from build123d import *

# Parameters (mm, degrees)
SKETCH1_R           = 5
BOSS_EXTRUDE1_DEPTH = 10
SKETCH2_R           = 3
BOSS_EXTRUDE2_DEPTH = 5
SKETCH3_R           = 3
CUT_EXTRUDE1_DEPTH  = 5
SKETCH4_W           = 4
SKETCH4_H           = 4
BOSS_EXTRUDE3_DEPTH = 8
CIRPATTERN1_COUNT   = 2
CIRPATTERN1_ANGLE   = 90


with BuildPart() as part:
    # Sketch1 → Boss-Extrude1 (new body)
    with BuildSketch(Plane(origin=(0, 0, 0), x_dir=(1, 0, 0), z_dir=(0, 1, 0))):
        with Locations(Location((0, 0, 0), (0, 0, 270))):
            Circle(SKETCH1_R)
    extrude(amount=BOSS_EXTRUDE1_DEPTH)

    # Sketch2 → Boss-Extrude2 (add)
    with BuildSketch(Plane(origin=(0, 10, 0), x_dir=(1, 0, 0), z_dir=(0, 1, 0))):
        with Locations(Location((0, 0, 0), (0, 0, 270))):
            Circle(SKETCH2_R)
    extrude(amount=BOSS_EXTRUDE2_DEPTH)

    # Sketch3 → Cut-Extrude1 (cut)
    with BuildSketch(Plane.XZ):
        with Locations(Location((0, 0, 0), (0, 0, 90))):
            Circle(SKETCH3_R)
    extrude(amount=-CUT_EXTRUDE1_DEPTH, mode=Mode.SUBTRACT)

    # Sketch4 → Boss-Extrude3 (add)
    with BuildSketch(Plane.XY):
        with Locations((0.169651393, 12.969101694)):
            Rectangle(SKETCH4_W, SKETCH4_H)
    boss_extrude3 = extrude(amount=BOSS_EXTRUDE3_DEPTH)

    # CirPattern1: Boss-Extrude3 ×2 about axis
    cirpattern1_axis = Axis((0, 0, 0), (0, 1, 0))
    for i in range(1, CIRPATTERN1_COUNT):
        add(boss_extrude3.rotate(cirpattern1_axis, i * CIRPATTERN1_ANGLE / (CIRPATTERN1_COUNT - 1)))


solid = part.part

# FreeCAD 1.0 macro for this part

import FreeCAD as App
import Part
import Sketcher
from FreeCAD import Vector

doc = App.newDocument("Part")
body = doc.addObject("PartDesign::Body", "Body")

# Sketch on XZ plane
sketch1 = body.newObject("Sketcher::SketchObject", "Sketch")
sketch1.AttachmentSupport = (doc.getObject("XZ_Plane"), [""])
sketch1.MapMode = "FlatFace"
sketch1.addGeometry(Part.Circle(Vector(0, 0, 0), Vector(0, 0, 1), 5), False)
sketch1.addConstraint(Sketcher.Constraint("Coincident", 0, 3, -1, 1))
sketch1.addConstraint(Sketcher.Constraint("Diameter", 0, 10.0))
pad1 = body.newObject("PartDesign::Pad", "Pad")
pad1.Profile = sketch1
pad1.Length = 10
pad1.Reversed = True

# Sketch on XZ plane
sketch2 = body.newObject("Sketcher::SketchObject", "Sketch001")
sketch2.AttachmentSupport = (doc.getObject("XZ_Plane"), [""])
sketch2.MapMode = "FlatFace"
sketch2.AttachmentOffset = App.Placement(Vector(0, 0, -10), App.Rotation())
sketch2.addGeometry(Part.Circle(Vector(0, 0, 0), Vector(0, 0, 1), 3), False)
sketch2.addConstraint(Sketcher.Constraint("Coincident", 0, 3, -1, 1))
sketch2.addConstraint(Sketcher.Constraint("Diameter", 0, 6.0))
pad2 = body.newObject("PartDesign::Pad", "Pad001")
pad2.Profile = sketch2
pad2.Length = 5
pad2.Reversed = True

# Sketch on XZ plane
sketch3 = body.newObject("Sketcher::SketchObject", "Sketch002")
sketch3.AttachmentSupport = (doc.getObject("XZ_Plane"), [""])
sketch3.MapMode = "FlatFace"
sketch3.addGeometry(Part.Circle(Vector(0, 0, 0), Vector(0, 0, 1), 3), False)
sketch3.addConstraint(Sketcher.Constraint("Coincident", 0, 3, -1, 1))
sketch3.addConstraint(Sketcher.Constraint("Diameter", 0, 6.0))
pocket1 = body.newObject("PartDesign::Pocket", "Pocket")
pocket1.Profile = sketch3
pocket1.Length = 5

# Sketch on XY plane
sketch4 = body.newObject("Sketcher::SketchObject", "Sketch003")
sketch4.AttachmentSupport = (doc.getObject("XY_Plane"), [""])
sketch4.MapMode = "FlatFace"
sketch4.addGeometry(Part.LineSegment(Vector(-1.8, 15, 0), Vector(-1.8, 11, 0)), False)
sketch4.addGeometry(Part.LineSegment(Vector(-1.8, 11, 0), Vector(2.2, 11, 0)), False)
sketch4.addGeometry(Part.LineSegment(Vector(2.2, 11, 0), Vector(2.2, 15, 0)), False)
sketch4.addGeometry(Part.LineSegment(Vector(2.2, 15, 0), Vector(-1.8, 15, 0)), False)
sketch4.addConstraint(Sketcher.Constraint("Coincident", 0, 2, 1, 1))
sketch4.addConstraint(Sketcher.Constraint("Coincident", 1, 2, 2, 1))
sketch4.addConstraint(Sketcher.Constraint("Coincident", 2, 2, 3, 1))
sketch4.addConstraint(Sketcher.Constraint("Coincident", 3, 2, 0, 1))
sketch4.addConstraint(Sketcher.Constraint("Vertical", 0))
sketch4.addConstraint(Sketcher.Constraint("Horizontal", 1))
sketch4.addConstraint(Sketcher.Constraint("Vertical", 2))
sketch4.addConstraint(Sketcher.Constraint("Horizontal", 3))
sketch4.addConstraint(Sketcher.Constraint("Equal", 3, 0))
sketch4.addConstraint(Sketcher.Constraint("DistanceX", 1, 1, 1, 2, 4.0))
sketch4.addConstraint(Sketcher.Constraint("DistanceY", -1, 1, 0, 2, 10.969102))
sketch4.addConstraint(Sketcher.Constraint("DistanceX", 0, 2, -1, 1, 1.830349))
pad3 = body.newObject("PartDesign::Pad", "Pad002")
pad3.Profile = sketch4
pad3.Length = 8
doc.recompute()

polarpattern = body.newObject("PartDesign::PolarPattern", "PolarPattern")
polarpattern.Originals = [pad3]
polarpattern.Axis = (doc.getObject("Y_Axis"), [""])
polarpattern.Angle = 90
polarpattern.Occurrences = 2
body.Tip = polarpattern

doc.recompute()
